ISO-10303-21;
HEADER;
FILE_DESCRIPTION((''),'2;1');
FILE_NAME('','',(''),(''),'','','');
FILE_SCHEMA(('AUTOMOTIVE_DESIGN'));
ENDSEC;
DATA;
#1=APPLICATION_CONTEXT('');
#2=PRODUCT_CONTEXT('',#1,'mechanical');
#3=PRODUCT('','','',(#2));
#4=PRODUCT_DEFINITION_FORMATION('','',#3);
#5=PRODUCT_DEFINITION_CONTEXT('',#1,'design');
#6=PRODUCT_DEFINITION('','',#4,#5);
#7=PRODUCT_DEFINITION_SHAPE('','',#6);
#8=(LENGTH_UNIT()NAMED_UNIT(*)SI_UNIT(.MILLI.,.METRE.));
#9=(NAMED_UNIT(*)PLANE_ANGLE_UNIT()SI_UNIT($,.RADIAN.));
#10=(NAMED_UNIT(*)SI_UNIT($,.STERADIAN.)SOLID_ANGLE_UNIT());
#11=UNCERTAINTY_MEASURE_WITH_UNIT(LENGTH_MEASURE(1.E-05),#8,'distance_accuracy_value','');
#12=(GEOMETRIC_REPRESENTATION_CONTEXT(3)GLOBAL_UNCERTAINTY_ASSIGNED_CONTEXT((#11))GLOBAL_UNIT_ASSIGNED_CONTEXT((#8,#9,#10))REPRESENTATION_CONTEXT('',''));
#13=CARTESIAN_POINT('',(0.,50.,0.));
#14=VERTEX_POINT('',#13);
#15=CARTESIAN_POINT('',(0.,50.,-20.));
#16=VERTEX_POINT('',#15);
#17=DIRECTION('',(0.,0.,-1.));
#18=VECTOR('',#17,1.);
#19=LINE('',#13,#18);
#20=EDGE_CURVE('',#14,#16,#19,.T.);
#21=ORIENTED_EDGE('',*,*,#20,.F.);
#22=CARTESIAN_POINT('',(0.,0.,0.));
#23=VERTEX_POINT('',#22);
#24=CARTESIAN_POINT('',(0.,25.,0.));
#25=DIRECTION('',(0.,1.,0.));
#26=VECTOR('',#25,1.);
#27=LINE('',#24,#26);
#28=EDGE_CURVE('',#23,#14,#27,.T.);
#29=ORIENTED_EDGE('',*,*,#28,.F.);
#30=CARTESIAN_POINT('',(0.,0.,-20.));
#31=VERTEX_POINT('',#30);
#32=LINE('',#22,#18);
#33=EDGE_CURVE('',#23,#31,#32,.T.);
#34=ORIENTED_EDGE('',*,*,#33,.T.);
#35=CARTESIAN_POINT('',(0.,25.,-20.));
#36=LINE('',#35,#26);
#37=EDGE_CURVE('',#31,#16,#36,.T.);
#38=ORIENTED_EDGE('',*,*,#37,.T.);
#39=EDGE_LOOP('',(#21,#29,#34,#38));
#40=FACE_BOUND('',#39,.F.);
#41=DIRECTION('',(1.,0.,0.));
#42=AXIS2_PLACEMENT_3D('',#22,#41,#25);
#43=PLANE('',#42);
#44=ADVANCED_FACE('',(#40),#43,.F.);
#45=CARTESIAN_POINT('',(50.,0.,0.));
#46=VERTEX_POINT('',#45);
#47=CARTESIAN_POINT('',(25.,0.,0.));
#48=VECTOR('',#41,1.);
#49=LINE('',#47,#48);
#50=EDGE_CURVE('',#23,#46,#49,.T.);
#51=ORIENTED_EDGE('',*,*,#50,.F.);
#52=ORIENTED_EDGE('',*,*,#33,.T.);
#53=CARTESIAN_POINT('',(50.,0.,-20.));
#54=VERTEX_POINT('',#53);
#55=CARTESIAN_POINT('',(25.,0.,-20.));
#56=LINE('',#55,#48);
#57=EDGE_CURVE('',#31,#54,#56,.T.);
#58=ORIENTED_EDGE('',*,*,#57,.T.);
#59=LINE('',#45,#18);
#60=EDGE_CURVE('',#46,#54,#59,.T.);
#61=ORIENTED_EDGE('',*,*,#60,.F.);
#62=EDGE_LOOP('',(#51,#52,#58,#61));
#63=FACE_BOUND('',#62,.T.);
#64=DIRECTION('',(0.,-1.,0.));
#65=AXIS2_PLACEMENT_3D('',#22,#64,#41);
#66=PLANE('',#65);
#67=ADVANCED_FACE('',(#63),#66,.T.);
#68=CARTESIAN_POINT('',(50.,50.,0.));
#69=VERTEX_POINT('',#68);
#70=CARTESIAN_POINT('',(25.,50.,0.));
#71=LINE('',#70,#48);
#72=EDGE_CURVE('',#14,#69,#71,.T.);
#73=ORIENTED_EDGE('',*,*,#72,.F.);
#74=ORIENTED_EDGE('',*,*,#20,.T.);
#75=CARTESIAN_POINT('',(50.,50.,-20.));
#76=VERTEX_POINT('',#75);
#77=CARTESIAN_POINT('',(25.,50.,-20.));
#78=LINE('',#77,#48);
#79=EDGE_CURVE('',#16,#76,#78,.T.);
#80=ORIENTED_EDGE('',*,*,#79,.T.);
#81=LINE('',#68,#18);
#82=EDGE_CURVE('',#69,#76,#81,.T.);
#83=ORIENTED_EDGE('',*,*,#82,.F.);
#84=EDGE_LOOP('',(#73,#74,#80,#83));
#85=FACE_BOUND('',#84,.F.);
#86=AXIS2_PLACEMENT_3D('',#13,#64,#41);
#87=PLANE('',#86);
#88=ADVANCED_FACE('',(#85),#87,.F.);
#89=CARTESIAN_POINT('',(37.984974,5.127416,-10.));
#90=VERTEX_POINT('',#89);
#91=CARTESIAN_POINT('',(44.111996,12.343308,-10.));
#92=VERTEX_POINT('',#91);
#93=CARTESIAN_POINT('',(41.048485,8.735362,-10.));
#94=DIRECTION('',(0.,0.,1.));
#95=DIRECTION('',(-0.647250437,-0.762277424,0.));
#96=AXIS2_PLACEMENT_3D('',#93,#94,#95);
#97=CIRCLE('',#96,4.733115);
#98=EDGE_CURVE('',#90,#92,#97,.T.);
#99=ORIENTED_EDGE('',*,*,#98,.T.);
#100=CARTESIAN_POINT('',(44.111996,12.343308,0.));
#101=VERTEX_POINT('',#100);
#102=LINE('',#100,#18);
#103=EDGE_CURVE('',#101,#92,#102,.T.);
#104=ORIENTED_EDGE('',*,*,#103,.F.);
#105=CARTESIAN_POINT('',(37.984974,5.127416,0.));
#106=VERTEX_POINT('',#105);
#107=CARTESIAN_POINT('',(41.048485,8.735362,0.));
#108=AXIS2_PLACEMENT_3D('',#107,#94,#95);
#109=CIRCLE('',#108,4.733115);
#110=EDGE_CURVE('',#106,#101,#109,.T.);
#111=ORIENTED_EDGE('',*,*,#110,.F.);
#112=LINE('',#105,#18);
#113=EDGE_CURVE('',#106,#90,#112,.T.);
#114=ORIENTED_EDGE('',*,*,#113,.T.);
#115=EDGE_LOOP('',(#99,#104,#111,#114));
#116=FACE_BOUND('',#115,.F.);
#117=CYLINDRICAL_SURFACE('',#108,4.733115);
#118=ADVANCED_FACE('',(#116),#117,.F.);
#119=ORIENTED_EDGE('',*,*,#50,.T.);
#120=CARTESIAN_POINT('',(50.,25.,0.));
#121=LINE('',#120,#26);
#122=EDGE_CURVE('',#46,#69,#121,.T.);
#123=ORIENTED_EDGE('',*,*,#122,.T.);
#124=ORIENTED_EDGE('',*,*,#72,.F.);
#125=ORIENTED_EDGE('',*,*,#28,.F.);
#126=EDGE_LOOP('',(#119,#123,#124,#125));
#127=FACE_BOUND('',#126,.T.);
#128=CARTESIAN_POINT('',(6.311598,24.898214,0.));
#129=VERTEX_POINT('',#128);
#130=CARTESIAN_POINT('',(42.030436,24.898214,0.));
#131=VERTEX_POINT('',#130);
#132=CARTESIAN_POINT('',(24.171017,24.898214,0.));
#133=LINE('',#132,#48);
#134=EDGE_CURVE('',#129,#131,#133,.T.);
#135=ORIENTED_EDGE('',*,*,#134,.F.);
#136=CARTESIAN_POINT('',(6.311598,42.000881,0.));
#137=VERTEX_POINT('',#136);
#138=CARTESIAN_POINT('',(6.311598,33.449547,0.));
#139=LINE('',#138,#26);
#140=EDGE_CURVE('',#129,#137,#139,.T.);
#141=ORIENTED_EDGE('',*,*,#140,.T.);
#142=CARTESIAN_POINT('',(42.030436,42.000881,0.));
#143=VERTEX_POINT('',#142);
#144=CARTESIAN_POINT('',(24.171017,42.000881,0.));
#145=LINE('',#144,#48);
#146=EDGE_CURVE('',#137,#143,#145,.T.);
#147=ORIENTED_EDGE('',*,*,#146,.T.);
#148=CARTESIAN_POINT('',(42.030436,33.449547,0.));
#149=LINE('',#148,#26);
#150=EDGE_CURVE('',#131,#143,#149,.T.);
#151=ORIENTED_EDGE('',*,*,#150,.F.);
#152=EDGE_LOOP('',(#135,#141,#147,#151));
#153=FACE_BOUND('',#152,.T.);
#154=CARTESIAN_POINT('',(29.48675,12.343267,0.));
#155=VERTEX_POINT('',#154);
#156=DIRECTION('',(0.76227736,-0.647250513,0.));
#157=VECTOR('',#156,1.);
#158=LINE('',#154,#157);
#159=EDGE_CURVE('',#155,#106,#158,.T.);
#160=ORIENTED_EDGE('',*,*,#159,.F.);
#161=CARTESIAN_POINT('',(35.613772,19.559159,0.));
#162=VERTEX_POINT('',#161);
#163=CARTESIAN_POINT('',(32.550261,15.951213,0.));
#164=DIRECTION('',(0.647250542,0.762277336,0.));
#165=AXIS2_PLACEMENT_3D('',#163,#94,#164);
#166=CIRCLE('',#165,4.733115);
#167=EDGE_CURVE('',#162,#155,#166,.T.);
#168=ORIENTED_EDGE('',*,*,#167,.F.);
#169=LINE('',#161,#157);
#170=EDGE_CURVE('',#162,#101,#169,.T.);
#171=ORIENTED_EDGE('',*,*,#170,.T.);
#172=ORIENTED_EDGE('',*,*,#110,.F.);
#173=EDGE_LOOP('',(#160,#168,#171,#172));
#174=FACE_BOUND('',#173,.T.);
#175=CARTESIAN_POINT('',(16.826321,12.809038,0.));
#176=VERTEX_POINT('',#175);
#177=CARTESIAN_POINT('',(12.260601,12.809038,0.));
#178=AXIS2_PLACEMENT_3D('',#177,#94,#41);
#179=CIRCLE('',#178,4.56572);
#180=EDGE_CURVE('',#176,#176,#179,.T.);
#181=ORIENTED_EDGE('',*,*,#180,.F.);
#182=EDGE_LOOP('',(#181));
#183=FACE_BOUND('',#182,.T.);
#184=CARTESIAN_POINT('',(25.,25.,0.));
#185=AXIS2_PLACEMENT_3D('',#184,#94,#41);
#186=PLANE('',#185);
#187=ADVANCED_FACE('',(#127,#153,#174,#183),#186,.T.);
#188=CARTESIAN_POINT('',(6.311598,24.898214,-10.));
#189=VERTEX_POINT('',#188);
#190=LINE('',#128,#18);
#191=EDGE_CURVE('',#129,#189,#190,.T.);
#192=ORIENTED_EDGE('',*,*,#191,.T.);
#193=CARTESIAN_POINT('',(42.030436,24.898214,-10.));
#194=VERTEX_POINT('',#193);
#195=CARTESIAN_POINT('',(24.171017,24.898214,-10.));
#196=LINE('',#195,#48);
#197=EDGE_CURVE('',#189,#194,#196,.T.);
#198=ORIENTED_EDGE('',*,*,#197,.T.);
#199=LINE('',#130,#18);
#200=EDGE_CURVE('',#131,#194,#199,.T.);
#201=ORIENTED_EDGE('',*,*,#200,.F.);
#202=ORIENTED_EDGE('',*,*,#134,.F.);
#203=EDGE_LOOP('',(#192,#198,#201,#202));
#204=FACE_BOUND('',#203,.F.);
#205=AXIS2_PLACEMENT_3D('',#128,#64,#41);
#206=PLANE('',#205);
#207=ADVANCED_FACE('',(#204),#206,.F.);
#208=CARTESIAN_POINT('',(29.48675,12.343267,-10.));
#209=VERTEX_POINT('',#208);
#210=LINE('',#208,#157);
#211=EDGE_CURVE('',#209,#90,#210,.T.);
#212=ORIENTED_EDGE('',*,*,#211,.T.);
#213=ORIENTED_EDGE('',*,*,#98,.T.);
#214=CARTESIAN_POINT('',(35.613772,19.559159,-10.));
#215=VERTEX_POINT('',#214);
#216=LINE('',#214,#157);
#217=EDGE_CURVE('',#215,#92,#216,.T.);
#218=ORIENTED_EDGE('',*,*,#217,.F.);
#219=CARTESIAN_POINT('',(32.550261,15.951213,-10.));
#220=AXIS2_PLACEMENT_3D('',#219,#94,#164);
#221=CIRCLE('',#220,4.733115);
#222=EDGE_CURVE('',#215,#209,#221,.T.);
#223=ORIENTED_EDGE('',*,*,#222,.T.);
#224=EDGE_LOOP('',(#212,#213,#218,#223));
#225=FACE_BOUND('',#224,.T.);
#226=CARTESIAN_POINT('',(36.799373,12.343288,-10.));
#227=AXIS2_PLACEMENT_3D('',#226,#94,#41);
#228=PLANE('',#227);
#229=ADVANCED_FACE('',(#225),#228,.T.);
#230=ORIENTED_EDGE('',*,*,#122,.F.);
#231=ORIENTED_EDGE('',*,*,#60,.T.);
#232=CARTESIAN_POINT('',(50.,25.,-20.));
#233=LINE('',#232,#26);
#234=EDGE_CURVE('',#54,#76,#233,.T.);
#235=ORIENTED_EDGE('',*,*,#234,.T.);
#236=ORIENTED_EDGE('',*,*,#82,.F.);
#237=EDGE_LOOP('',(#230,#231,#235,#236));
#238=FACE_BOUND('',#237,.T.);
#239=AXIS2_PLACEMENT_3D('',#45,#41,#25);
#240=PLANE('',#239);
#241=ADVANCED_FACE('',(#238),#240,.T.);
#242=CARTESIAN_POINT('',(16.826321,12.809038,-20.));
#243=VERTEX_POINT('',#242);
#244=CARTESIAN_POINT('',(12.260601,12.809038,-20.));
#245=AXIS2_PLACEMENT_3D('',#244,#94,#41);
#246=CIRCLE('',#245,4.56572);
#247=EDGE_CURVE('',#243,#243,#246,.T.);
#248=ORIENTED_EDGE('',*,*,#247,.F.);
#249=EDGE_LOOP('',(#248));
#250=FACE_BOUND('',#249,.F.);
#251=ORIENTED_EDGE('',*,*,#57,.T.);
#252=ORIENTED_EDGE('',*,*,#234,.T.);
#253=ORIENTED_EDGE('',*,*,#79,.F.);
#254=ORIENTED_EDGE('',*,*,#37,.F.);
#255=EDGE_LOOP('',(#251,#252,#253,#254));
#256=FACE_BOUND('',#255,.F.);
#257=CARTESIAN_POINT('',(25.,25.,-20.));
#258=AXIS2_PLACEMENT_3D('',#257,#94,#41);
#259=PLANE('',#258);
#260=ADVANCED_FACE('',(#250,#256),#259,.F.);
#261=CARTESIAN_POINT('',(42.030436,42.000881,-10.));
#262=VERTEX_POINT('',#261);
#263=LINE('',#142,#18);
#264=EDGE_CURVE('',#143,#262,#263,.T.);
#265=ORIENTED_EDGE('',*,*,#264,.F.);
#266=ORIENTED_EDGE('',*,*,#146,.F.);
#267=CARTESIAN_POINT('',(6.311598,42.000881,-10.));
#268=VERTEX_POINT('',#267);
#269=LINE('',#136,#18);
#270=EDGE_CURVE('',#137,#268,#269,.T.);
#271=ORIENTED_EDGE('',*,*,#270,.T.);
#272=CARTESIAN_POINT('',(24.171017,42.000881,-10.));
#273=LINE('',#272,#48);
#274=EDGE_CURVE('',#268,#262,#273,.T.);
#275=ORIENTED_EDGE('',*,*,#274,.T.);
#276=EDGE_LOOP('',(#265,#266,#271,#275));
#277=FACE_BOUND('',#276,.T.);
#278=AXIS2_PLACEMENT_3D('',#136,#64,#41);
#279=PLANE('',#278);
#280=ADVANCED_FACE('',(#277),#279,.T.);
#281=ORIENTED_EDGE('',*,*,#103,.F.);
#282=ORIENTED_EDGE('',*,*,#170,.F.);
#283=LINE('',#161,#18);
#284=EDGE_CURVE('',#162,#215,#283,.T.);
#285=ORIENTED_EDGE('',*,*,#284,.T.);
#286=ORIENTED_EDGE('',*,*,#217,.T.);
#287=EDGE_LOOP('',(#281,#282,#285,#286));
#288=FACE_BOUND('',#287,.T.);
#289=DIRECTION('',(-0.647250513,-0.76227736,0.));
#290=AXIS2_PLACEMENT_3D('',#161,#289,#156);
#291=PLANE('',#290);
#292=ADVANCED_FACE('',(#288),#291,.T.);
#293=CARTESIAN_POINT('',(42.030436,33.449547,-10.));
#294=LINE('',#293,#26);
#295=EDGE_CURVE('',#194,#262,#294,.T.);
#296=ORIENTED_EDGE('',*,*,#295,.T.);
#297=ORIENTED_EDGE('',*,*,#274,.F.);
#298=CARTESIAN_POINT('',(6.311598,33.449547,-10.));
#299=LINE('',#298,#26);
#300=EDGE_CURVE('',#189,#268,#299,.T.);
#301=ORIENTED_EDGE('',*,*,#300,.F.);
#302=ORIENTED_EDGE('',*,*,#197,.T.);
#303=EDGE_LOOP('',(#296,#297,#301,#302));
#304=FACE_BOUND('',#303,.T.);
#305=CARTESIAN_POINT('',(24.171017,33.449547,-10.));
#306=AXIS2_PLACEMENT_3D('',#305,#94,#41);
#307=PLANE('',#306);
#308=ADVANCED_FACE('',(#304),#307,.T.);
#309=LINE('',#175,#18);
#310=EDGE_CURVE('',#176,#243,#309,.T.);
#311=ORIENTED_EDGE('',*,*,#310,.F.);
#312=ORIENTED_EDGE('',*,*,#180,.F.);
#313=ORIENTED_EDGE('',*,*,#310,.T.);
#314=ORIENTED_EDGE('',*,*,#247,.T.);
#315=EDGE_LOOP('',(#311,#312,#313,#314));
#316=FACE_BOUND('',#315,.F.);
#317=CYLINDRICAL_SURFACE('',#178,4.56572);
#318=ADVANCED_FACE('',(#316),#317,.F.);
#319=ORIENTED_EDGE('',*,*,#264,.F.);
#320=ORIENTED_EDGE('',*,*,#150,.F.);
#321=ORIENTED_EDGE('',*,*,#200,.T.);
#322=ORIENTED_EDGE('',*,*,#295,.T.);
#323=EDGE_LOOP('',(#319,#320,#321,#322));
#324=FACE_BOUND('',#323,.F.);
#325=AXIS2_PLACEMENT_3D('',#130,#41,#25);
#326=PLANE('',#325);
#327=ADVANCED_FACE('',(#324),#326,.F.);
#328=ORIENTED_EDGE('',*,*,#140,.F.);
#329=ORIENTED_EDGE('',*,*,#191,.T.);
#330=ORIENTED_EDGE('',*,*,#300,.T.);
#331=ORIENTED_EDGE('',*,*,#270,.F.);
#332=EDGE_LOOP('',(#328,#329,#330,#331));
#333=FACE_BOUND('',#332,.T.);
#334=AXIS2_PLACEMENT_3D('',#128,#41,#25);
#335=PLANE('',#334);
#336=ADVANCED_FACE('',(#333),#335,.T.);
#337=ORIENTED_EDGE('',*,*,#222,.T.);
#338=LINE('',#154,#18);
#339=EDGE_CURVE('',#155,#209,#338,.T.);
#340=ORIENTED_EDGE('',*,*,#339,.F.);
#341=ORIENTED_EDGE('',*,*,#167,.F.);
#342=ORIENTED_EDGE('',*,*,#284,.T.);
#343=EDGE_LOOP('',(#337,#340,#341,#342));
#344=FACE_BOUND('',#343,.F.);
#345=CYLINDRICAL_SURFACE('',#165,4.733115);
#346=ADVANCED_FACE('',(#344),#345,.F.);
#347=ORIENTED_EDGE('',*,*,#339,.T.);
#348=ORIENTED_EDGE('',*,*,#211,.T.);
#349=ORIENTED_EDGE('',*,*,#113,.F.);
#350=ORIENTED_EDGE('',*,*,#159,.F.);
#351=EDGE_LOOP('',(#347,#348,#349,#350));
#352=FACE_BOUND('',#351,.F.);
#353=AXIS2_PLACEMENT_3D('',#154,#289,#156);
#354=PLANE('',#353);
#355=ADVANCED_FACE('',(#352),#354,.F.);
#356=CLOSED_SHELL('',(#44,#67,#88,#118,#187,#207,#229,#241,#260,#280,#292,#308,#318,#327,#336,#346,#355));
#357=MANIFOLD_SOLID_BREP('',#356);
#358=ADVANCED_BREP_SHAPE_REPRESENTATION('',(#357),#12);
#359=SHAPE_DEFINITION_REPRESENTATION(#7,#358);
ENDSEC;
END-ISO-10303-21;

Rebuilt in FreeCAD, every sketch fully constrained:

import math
import FreeCAD as App
import Part
import Sketcher


def add_polygon(sketch, points):
    """Adds a closed chain of lines whose ends are joined by coincident constraints."""
    first, n = sketch.GeometryCount, len(points)
    for a, b in zip(points, points[1:] + points[:1]):
        sketch.addGeometry(Part.LineSegment(App.Vector(*a, 0), App.Vector(*b, 0)), False)
    for i in range(n):
        sketch.addConstraint(Sketcher.Constraint("Coincident", first + i, 2, first + (i + 1) % n, 1))

doc = App.newDocument("Part")
body = doc.addObject("PartDesign::Body", "Body")

sketch1 = body.newObject("Sketcher::SketchObject", "Sketch")
sketch1.AttachmentSupport = (doc.getObject("XY_Plane"), [""])
sketch1.MapMode = "FlatFace"
add_polygon(sketch1, [(-25, 25), (-25, -25), (25, -25), (25, 25)])
sketch1.addGeometry(Part.Circle(App.Vector(-12.7, -12.2, 0), App.Vector(0, 0, 1), 4.6), False)
sketch1.addConstraint(Sketcher.Constraint("Vertical", 0))
sketch1.addConstraint(Sketcher.Constraint("Horizontal", 1))
sketch1.addConstraint(Sketcher.Constraint("Vertical", 2))
sketch1.addConstraint(Sketcher.Constraint("Horizontal", 3))
sketch1.addConstraint(Sketcher.Constraint("Symmetric", 0, 2, 2, 2, -1, 1))
sketch1.addConstraint(Sketcher.Constraint("Equal", 3, 0))
sketch1.addConstraint(Sketcher.Constraint("DistanceX", 1, 1, 1, 2, 50.0))
sketch1.addConstraint(Sketcher.Constraint("Diameter", 4, 9.13144))
sketch1.addConstraint(Sketcher.Constraint("DistanceX", 4, 3, -1, 1, 12.739399))
sketch1.addConstraint(Sketcher.Constraint("DistanceY", 4, 3, -1, 1, 12.190962))
pad1 = body.newObject("PartDesign::Pad", "Pad")
pad1.Profile = sketch1
pad1.Length = 20
pad1.Reversed = True

sketch2 = body.newObject("Sketcher::SketchObject", "Sketch001")
sketch2.AttachmentSupport = (doc.getObject("XY_Plane"), [""])
sketch2.MapMode = "FlatFace"
add_polygon(sketch2, [(-19, 17), (-19, 0), (17, 0), (17, 17)])
sketch2.addConstraint(Sketcher.Constraint("Vertical", 0))
sketch2.addConstraint(Sketcher.Constraint("Horizontal", 1))
sketch2.addConstraint(Sketcher.Constraint("Vertical", 2))
sketch2.addConstraint(Sketcher.Constraint("Horizontal", 3))
sketch2.addConstraint(Sketcher.Constraint("DistanceX", 1, 1, 1, 2, 35.718838))
sketch2.addConstraint(Sketcher.Constraint("DistanceX", 0, 2, -1, 1, 18.688402))
sketch2.addConstraint(Sketcher.Constraint("DistanceY", 0, 2, 0, 1, 17.102667))
sketch2.addConstraint(Sketcher.Constraint("DistanceY", -1, 1, 2, 2, 17.000881))
pocket1 = body.newObject("PartDesign::Pocket", "Pocket")
pocket1.Profile = sketch2
pocket1.Length = 10

sketch3 = body.newObject("Sketcher::SketchObject", "Sketch002")
sketch3.AttachmentSupport = (doc.getObject("XY_Plane"), [""])
sketch3.MapMode = "FlatFace"
sketch3.addGeometry(Part.ArcOfCircle(Part.Circle(App.Vector(7.6, -9, 0), App.Vector(0, 0, 1), 4.7), math.radians(50), math.radians(230)), False)
sketch3.addGeometry(Part.LineSegment(App.Vector(4.5, -12.7, 0), App.Vector(13, -19.9, 0)), False)
sketch3.addGeometry(Part.ArcOfCircle(Part.Circle(App.Vector(16, -16.3, 0), App.Vector(0, 0, 1), 4.7), math.radians(-130), math.radians(50)), False)
sketch3.addGeometry(Part.LineSegment(App.Vector(19.1, -12.7, 0), App.Vector(10.6, -5.4, 0)), False)
sketch3.addConstraint(Sketcher.Constraint("Tangent", 0, 2, 1, 1))
sketch3.addConstraint(Sketcher.Constraint("Tangent", 1, 2, 2, 1))
sketch3.addConstraint(Sketcher.Constraint("Tangent", 2, 2, 3, 1))
sketch3.addConstraint(Sketcher.Constraint("Tangent", 3, 2, 0, 1))
sketch3.addConstraint(Sketcher.Constraint("Equal", 0, 2))
sketch3.addConstraint(Sketcher.Constraint("Radius", 0, 4.733115))
sketch3.addConstraint(Sketcher.Constraint("DistanceX", 3, 2, 1, 2, 2.371202))
sketch3.addConstraint(Sketcher.Constraint("DistanceX", -1, 1, 0, 3, 7.550261))
sketch3.addConstraint(Sketcher.Constraint("DistanceX", -1, 1, 0, 2, 4.48675))
sketch3.addConstraint(Sketcher.Constraint("DistanceY", 2, 2, -1, 1, 12.656692))
pocket2 = body.newObject("PartDesign::Pocket", "Pocket001")
pocket2.Profile = sketch3
pocket2.Length = 10
body2 = doc.addObject("PartDesign::Body", "Body001")
doc.recompute()

body.Placement = App.Placement(App.Vector(25, 25, 0), App.Rotation(App.Vector(0, 0, 1), 0))
boolean = body2.newObject("PartDesign::Boolean", "Boolean")
boolean.Type = "Fuse"
boolean.addObjects([body])

doc.recompute()
